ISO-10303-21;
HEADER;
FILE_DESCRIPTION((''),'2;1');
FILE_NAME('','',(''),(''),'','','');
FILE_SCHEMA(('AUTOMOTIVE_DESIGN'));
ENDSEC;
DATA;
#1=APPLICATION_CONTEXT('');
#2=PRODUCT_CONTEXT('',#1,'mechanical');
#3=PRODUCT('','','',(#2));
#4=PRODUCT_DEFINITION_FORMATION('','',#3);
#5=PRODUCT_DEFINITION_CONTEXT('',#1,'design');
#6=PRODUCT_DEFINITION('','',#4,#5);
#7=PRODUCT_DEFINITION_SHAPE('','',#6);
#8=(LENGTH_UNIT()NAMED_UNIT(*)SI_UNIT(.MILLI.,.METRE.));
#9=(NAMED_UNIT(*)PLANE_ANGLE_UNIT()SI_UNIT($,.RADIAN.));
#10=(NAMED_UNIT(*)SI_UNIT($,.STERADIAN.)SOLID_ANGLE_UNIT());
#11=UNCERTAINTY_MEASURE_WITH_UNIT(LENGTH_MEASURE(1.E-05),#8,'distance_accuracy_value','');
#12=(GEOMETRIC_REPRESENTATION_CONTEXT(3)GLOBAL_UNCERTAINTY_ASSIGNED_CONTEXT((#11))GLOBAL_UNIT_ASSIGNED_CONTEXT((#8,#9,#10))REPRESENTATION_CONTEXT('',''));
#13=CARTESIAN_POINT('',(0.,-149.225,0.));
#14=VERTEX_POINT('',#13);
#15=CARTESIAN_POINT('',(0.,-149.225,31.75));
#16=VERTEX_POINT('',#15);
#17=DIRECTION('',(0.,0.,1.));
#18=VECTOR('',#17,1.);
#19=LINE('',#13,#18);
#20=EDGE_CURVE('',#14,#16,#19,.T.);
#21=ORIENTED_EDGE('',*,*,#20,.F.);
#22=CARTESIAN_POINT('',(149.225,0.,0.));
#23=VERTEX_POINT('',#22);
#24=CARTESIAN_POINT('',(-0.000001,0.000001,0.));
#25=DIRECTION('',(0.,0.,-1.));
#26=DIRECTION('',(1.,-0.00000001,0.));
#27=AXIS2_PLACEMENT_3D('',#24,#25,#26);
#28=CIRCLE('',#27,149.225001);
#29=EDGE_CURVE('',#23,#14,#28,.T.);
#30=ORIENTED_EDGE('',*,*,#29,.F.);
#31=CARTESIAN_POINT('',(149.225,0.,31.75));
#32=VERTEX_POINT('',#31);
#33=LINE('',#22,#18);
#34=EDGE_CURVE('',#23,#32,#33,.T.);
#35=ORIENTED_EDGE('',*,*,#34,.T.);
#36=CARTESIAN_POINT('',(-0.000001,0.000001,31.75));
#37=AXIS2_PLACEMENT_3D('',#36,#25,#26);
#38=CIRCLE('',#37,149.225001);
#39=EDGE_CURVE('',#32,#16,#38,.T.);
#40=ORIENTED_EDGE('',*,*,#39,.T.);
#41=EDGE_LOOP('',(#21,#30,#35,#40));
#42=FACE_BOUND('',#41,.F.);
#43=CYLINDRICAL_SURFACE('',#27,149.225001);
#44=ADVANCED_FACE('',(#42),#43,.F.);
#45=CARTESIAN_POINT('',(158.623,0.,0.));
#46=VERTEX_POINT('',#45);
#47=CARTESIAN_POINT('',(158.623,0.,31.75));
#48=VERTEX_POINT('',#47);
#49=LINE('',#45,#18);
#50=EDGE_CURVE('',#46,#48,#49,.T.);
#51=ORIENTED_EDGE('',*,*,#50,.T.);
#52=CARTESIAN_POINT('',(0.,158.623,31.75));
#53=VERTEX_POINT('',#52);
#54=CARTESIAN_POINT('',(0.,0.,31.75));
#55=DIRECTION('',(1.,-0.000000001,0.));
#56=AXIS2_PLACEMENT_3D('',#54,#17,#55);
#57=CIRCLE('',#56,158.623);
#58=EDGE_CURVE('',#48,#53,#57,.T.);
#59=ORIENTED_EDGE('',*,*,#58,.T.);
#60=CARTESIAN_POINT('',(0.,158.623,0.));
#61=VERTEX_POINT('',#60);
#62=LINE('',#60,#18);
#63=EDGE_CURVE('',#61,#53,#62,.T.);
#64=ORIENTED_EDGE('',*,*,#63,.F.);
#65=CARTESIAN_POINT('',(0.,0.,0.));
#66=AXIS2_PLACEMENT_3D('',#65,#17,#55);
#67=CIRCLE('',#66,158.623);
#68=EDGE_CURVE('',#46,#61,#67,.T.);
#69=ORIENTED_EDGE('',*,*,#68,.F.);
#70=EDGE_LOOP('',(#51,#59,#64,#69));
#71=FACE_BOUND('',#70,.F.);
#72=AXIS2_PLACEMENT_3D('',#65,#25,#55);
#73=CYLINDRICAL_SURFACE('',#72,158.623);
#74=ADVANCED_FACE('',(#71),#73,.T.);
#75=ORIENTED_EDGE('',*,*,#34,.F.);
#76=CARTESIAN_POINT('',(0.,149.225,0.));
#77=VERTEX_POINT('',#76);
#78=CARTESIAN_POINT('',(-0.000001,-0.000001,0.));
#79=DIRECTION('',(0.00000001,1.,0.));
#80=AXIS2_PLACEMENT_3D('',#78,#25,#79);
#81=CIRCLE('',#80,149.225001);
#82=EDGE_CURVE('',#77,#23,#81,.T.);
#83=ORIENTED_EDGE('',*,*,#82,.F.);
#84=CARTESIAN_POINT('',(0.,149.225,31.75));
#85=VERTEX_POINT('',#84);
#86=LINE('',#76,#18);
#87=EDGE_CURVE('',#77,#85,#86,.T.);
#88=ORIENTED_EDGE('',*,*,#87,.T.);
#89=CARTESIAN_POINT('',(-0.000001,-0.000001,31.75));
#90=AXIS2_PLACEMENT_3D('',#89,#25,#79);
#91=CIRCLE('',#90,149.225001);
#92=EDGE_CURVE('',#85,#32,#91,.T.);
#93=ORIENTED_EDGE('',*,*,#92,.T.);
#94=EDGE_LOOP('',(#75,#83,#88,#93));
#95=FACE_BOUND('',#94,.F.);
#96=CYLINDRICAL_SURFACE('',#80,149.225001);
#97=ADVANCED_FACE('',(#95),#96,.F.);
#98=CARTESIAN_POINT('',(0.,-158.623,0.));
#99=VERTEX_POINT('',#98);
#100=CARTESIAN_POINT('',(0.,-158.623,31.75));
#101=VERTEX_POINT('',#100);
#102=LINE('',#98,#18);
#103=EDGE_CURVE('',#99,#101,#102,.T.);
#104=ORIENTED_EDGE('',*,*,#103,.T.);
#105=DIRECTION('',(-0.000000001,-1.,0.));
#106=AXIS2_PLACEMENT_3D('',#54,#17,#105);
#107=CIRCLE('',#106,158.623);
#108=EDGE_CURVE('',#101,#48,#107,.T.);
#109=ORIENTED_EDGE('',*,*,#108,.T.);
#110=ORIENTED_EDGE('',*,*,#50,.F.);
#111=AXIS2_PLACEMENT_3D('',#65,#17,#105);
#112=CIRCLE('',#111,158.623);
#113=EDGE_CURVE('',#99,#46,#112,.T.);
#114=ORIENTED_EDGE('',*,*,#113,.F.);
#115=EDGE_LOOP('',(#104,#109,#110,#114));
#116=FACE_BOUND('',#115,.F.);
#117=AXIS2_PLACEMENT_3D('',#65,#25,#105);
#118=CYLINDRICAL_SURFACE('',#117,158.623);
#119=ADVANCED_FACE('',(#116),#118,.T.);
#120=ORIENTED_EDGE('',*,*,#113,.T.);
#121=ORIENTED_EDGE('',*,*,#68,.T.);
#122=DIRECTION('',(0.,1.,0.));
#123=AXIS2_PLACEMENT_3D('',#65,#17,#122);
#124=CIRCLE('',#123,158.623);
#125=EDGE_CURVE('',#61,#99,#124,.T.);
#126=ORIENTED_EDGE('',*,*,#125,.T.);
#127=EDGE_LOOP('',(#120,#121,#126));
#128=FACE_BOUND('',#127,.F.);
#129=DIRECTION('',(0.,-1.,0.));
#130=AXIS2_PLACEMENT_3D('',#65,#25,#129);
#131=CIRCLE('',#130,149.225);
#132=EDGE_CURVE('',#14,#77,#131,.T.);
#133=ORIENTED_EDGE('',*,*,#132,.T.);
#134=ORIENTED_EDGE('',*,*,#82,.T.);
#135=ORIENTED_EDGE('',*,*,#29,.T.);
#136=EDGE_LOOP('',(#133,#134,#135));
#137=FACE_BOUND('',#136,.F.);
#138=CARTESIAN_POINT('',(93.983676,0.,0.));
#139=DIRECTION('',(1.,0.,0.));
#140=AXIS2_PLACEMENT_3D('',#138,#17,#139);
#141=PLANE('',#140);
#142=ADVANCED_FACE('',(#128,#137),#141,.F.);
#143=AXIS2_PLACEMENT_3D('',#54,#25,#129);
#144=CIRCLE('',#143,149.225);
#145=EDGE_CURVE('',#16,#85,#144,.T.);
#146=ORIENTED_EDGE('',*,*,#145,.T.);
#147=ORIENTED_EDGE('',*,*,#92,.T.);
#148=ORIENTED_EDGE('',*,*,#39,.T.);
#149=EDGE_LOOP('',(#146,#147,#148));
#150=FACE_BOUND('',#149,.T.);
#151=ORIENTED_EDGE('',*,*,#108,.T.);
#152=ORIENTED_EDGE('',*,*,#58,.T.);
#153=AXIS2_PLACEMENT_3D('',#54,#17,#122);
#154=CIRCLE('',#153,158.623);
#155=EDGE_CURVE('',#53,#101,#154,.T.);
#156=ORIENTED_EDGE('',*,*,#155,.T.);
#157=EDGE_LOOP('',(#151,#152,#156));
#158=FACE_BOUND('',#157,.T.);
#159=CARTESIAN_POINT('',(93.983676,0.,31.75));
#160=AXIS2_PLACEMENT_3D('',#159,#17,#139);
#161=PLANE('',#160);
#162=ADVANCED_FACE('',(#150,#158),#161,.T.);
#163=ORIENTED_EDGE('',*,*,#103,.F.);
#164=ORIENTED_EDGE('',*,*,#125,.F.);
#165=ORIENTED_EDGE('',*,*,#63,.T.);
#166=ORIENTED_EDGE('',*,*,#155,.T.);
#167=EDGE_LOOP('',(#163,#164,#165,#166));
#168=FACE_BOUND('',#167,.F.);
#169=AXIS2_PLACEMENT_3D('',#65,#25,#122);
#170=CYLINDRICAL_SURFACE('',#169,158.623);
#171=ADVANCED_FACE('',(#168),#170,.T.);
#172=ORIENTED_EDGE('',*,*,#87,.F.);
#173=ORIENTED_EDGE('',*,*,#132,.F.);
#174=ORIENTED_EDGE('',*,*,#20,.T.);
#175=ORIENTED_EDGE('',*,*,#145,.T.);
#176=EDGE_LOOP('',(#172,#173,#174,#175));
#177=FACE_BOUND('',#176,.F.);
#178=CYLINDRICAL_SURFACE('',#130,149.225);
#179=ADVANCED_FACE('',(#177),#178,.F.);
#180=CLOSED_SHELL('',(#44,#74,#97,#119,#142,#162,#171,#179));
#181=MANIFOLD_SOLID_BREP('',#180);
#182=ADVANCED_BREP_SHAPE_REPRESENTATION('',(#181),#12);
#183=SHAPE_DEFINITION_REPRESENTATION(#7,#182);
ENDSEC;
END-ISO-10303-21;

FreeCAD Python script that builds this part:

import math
import FreeCAD as App
import Part
import Sketcher
from FreeCAD import Vector
Q = App.Units.Quantity

doc = App.newDocument("Part")
params = doc.addObject("Spreadsheet::Sheet", "Params")
for row, (alias, value) in enumerate([
    ("sketch1_radius", "6.245 in"),
    ("sketch1_radius2", "5.8750001 in"),
    ("pad1_length", "1.25 in"),
], start=1):
    params.set(f"A{row}", alias)
    params.set(f"B{row}", "=" + value)
    params.setAlias(f"B{row}", alias)

body = doc.addObject("PartDesign::Body", "Body")

sketch1 = body.newObject("Sketcher::SketchObject", "Sketch")
sketch1.AttachmentSupport = (doc.getObject("XY_Plane"), [""])
sketch1.MapMode = "FlatFace"
sketch1.addGeometry(Part.ArcOfCircle(Part.Circle(Vector(0, 0, 0), Vector(0, 0, 1), 158.623), math.radians(-90), math.radians(0)), False)
sketch1.addGeometry(Part.ArcOfCircle(Part.Circle(Vector(0, 0, 0), Vector(0, 0, 1), 158.623), math.radians(0), math.radians(90)), False)
sketch1.addGeometry(Part.ArcOfCircle(Part.Circle(Vector(0, 0, 0), Vector(0, 0, 1), 158.623), math.radians(90), math.radians(270)), False)
sketch1.addGeometry(Part.ArcOfCircle(Part.Circle(Vector(-0.000001, -0.000001, 0), Vector(0, 0, 1), 149.225001), math.radians(0.000001), math.radians(89.999999)), False)
sketch1.addGeometry(Part.ArcOfCircle(Part.Circle(Vector(-0.000001, 0.000001, 0), Vector(0, 0, 1), 149.225001), math.radians(-89.999999), math.radians(-0.000001)), False)
sketch1.addGeometry(Part.ArcOfCircle(Part.Circle(Vector(0, 0, 0), Vector(0, 0, 1), 149.225), math.radians(90), math.radians(270)), False)
sketch1.addConstraint(Sketcher.Constraint("Tangent", 0, 2, 1, 1))
sketch1.addConstraint(Sketcher.Constraint("Tangent", 1, 2, 2, 1))
sketch1.addConstraint(Sketcher.Constraint("Tangent", 2, 2, 0, 1))
sketch1.addConstraint(Sketcher.Constraint("Tangent", 3, 1, 4, 2))
sketch1.addConstraint(Sketcher.Constraint("Tangent", 4, 1, 5, 2))
sketch1.addConstraint(Sketcher.Constraint("Tangent", 5, 1, 3, 2))
sketch1.addConstraint(Sketcher.Constraint("Coincident", 0, 3, -1, 1))
sketch1.addConstraint(Sketcher.Constraint("Coincident", 3, 3, -1, 1))
sketch1.addConstraint(Sketcher.Constraint("PointOnObject", 0, 2, -1))
sketch1.addConstraint(Sketcher.Constraint("PointOnObject", 1, 2, -2))
sketch1.addConstraint(Sketcher.Constraint("PointOnObject", 2, 2, -2))
sketch1.addConstraint(Sketcher.Constraint("PointOnObject", 3, 1, -1))
sketch1.addConstraint(Sketcher.Constraint("PointOnObject", 4, 1, -2))
sketch1.addConstraint(Sketcher.Constraint("PointOnObject", 5, 1, -2))
sketch1.addConstraint(Sketcher.Constraint("Radius", 0, Q("6.245 in")))
sketch1.addConstraint(Sketcher.Constraint("Radius", 3, Q("5.8750001 in")))
sketch1.setExpression("Constraints[14]", "Params.sketch1_radius")
sketch1.setExpression("Constraints[15]", "Params.sketch1_radius2")
pad1 = body.newObject("PartDesign::Pad", "Pad")
pad1.Profile = sketch1
pad1.setExpression("Length", "Params.pad1_length")

doc.recompute()
